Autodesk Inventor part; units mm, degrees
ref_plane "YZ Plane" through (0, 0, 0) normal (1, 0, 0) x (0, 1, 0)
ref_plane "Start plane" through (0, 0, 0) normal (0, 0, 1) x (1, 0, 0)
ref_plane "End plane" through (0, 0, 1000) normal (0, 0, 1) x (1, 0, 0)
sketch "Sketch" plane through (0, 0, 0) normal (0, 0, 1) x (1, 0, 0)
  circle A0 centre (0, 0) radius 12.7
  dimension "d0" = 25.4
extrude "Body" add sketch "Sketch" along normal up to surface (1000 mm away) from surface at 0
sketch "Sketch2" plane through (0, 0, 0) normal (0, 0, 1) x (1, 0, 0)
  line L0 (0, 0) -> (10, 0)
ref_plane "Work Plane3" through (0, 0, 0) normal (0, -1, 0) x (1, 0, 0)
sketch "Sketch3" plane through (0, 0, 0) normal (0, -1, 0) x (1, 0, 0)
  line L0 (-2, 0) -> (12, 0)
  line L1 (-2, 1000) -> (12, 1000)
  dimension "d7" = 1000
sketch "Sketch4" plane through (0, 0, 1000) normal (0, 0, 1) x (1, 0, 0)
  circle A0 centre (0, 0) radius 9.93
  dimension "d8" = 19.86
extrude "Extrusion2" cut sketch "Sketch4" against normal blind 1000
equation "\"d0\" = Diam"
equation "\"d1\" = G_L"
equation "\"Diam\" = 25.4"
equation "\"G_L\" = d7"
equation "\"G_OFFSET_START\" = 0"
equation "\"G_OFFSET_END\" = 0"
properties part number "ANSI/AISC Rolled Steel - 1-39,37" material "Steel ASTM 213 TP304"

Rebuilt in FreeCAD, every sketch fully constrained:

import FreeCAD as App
import Part
import Sketcher

V = App.Vector
Q = App.Units.Quantity

doc = App.newDocument("Part")
body = doc.addObject("PartDesign::Body", "Body")

sketch1 = body.newObject("Sketcher::SketchObject", "Sketch")
sketch1.AttachmentSupport = (doc.getObject("XY_Plane"), [""])
sketch1.MapMode = "FlatFace"
sketch1.addGeometry(Part.Circle(V(0, 0, 0), V(0, 0, 1), 13), False)
sketch1.addConstraint(Sketcher.Constraint("Coincident", 0, 3, -1, 1))
sketch1.addConstraint(Sketcher.Constraint("Diameter", 0, Q("25.4 mm")))
pad1 = body.newObject("PartDesign::Pad", "Pad")
pad1.Profile = sketch1
pad1.Length = 1000

sketch2 = body.newObject("Sketcher::SketchObject", "Sketch001")
sketch2.AttachmentSupport = (doc.getObject("XY_Plane"), [""])
sketch2.MapMode = "FlatFace"
sketch2.AttachmentOffset = App.Placement(V(0, 0, 1000), App.Rotation())
sketch2.addGeometry(Part.Circle(V(0, 0, 0), V(0, 0, 1), 10), False)
sketch2.addConstraint(Sketcher.Constraint("Coincident", 0, 3, -1, 1))
sketch2.addConstraint(Sketcher.Constraint("Diameter", 0, Q("19.86 mm")))
pocket1 = body.newObject("PartDesign::Pocket", "Pocket")
pocket1.Profile = sketch2
pocket1.Length = 1000

doc.recompute()
